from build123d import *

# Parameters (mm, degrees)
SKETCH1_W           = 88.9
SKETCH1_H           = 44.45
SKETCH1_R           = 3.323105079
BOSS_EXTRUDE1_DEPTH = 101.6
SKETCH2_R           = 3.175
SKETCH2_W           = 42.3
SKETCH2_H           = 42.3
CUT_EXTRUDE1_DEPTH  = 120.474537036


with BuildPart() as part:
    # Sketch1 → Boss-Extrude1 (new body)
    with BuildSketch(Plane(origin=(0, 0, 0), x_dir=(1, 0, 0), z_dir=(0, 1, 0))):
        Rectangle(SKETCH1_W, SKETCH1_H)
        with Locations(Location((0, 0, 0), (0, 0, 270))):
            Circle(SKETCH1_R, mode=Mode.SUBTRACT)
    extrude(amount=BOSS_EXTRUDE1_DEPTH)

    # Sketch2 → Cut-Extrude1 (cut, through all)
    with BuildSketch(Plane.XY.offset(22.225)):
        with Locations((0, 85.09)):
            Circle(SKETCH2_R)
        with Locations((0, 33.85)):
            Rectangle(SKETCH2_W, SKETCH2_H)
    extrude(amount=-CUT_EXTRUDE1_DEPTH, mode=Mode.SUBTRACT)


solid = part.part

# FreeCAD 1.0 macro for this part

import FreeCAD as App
import Part
import Sketcher
from FreeCAD import Vector
Q = App.Units.Quantity

doc = App.newDocument("Part")
body = doc.addObject("PartDesign::Body", "Body")

# Sketch on XZ plane
sketch1 = body.newObject("Sketcher::SketchObject", "Sketch")
sketch1.AttachmentSupport = (doc.getObject("XZ_Plane"), [""])
sketch1.MapMode = "FlatFace"
sketch1.addGeometry([
    Part.LineSegment(Vector(-44.5, -22.2, 0), Vector(-44.5, 22.2, 0)),  # 0
    Part.LineSegment(Vector(-44.5, 22.2, 0), Vector(44.5, 22.2, 0)),  # 1
    Part.LineSegment(Vector(44.5, 22.2, 0), Vector(44.5, -22.2, 0)),  # 2
    Part.LineSegment(Vector(44.5, -22.2, 0), Vector(-44.5, -22.2, 0)),  # 3
    Part.Circle(Vector(0, 0, 0), Vector(0, 0, 1), 3.3),  # 4
], False)
sketch1.addConstraint([
    Sketcher.Constraint("Coincident", 0, 2, 1, 1),
    Sketcher.Constraint("Coincident", 1, 2, 2, 1),
    Sketcher.Constraint("Coincident", 2, 2, 3, 1),
    Sketcher.Constraint("Coincident", 3, 2, 0, 1),
    Sketcher.Constraint("Vertical", 0),
    Sketcher.Constraint("Horizontal", 1),
    Sketcher.Constraint("Vertical", 2),
    Sketcher.Constraint("Horizontal", 3),
    Sketcher.Constraint("Coincident", 4, 3, -1, 1),
    Sketcher.Constraint("Symmetric", 0, 2, 2, 2, -1, 1),
    Sketcher.Constraint("DistanceX", 1, 1, 1, 2, Q("3.5 in")),
    Sketcher.Constraint("DistanceY", 0, 1, 0, 2, Q("1.75 in")),
    Sketcher.Constraint("Diameter", 4, 6.64621),
])
pad1 = body.newObject("PartDesign::Pad", "Pad")
pad1.Profile = sketch1
pad1.Length = Q("4 in")
pad1.Reversed = True

# Sketch on XY plane
sketch2 = body.newObject("Sketcher::SketchObject", "Sketch001")
sketch2.AttachmentSupport = (doc.getObject("XY_Plane"), [""])
sketch2.MapMode = "FlatFace"
sketch2.AttachmentOffset = App.Placement(Vector(0, 0, 0.875 * 25.4), App.Rotation())
sketch2.addGeometry([
    Part.Circle(Vector(0, 85.1, 0), Vector(0, 0, 1), 3.2),  # 0
    Part.LineSegment(Vector(-21.1, 55, 0), Vector(-21.1, 12.7, 0)),  # 1
    Part.LineSegment(Vector(-21.1, 12.7, 0), Vector(21.1, 12.7, 0)),  # 2
    Part.LineSegment(Vector(21.1, 12.7, 0), Vector(21.1, 55, 0)),  # 3
    Part.LineSegment(Vector(21.1, 55, 0), Vector(-21.1, 55, 0)),  # 4
], False)
sketch2.addConstraint([
    Sketcher.Constraint("Coincident", 1, 2, 2, 1),
    Sketcher.Constraint("Coincident", 2, 2, 3, 1),
    Sketcher.Constraint("Coincident", 3, 2, 4, 1),
    Sketcher.Constraint("Coincident", 4, 2, 1, 1),
    Sketcher.Constraint("Vertical", 1),
    Sketcher.Constraint("Horizontal", 2),
    Sketcher.Constraint("Vertical", 3),
    Sketcher.Constraint("Horizontal", 4),
    Sketcher.Constraint("PointOnObject", 0, 3, -2),
    Sketcher.Constraint("Equal", 4, 1),
    Sketcher.Constraint("Diameter", 0, Q("0.25 in")),
    Sketcher.Constraint("DistanceY", -1, 1, 1, 2, Q("0.5 in")),
    Sketcher.Constraint("DistanceY", -1, 1, 0, 3, Q("3.35 in")),
    Sketcher.Constraint("DistanceX", 2, 1, 2, 2, 42.3),
    Sketcher.Constraint("DistanceX", 1, 2, -1, 1, 21.15),
])
pocket1 = body.newObject("PartDesign::Pocket", "Pocket")
pocket1.Profile = sketch2
pocket1.Type = "ThroughAll"

doc.recompute()
